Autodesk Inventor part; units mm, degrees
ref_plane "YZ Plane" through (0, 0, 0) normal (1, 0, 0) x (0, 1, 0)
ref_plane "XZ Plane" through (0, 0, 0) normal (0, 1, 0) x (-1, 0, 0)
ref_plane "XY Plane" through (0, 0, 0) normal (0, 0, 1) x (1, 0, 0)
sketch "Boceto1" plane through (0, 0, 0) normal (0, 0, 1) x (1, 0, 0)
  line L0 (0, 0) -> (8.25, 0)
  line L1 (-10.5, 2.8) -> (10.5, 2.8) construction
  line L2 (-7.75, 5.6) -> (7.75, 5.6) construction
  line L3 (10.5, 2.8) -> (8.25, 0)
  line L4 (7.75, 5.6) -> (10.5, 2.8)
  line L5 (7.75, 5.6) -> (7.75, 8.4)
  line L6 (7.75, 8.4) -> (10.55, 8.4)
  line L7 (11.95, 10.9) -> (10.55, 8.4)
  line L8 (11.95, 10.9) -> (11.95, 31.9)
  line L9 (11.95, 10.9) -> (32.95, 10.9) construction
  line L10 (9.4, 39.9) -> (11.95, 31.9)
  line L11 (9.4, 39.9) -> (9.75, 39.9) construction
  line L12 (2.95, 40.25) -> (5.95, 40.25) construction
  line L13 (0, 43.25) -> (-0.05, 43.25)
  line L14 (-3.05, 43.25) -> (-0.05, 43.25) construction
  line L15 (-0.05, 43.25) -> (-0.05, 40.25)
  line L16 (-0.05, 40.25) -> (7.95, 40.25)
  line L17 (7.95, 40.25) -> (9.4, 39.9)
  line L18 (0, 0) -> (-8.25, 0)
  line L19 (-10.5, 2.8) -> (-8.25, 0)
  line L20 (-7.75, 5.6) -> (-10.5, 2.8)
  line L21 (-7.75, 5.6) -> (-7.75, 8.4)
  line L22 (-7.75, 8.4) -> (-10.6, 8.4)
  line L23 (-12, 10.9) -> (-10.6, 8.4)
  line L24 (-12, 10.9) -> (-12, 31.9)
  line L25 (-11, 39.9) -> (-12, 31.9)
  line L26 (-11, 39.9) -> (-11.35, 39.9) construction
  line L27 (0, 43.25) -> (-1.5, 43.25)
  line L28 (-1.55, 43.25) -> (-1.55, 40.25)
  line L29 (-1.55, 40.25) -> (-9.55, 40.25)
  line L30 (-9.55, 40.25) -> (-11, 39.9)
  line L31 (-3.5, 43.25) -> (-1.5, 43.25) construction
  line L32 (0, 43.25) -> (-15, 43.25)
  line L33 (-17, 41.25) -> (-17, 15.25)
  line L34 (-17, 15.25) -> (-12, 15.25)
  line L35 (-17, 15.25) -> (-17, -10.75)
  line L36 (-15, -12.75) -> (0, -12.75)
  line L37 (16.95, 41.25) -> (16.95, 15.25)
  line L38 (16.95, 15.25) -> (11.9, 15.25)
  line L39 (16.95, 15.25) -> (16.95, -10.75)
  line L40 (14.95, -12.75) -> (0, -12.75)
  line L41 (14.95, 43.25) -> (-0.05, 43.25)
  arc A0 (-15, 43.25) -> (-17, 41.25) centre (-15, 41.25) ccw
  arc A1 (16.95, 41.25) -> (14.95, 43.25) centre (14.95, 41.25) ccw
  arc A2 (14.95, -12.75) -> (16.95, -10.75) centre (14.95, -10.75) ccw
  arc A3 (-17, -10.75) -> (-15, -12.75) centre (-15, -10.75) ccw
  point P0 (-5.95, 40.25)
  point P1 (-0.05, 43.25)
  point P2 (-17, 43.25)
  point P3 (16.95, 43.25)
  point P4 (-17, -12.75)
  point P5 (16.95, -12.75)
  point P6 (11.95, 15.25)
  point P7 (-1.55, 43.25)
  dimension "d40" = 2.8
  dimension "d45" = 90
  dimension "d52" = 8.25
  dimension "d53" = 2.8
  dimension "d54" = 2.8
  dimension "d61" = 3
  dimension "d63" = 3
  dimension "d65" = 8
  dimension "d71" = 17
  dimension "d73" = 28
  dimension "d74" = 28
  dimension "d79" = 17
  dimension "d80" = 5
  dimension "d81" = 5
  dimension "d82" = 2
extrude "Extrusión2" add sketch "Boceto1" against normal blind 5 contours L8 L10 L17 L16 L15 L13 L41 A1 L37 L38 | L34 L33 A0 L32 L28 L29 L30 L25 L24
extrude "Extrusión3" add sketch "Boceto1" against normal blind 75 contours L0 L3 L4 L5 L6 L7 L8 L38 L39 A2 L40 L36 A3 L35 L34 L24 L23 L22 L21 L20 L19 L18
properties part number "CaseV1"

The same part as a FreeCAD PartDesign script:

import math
import FreeCAD as App
import Part
import Sketcher
from FreeCAD import Vector
Q = App.Units.Quantity

doc = App.newDocument("Part")
body = doc.addObject("PartDesign::Body", "Body")
body.AllowCompound = True

sketch1 = doc.addObject("Sketcher::SketchObject", "Sketch")
body.addObject(sketch1)
sketch1.AttachmentSupport = (doc.XY_Plane, [""])
sketch1.MapMode = "FlatFace"
sketch1.addGeometry([
    Part.LineSegment(Vector(11.95, 31.9, 0), Vector(11.95, 15.25, 0)),
    Part.LineSegment(Vector(11.95, 15.25, 0), Vector(16.95, 15.25, 0)),
    Part.LineSegment(Vector(16.95, 15.25, 0), Vector(16.95, 41.25, 0)),
    Part.ArcOfCircle(Part.Circle(Vector(14.95, 41.25, 0), Vector(0, 0, 1), 2), math.radians(0), math.radians(90)),
    Part.LineSegment(Vector(14.95, 43.25, 0), Vector(-0.05, 43.25, 0)),
    Part.LineSegment(Vector(-0.05, 43.25, 0), Vector(-0.05, 40.25, 0)),
    Part.LineSegment(Vector(-0.05, 40.25, 0), Vector(7.95, 40.25, 0)),
    Part.LineSegment(Vector(7.95, 40.25, 0), Vector(9.4, 39.9, 0)),
    Part.LineSegment(Vector(9.4, 39.9, 0), Vector(11.95, 31.9, 0)),
    Part.LineSegment(Vector(-17, 15.25, 0), Vector(-12, 15.25, 0)),
    Part.LineSegment(Vector(-12, 15.25, 0), Vector(-12, 31.9, 0)),
    Part.LineSegment(Vector(-12, 31.9, 0), Vector(-11, 39.9, 0)),
    Part.LineSegment(Vector(-11, 39.9, 0), Vector(-9.55, 40.25, 0)),
    Part.LineSegment(Vector(-9.55, 40.25, 0), Vector(-1.55, 40.25, 0)),
    Part.LineSegment(Vector(-1.55, 40.25, 0), Vector(-1.55, 43.25, 0)),
    Part.LineSegment(Vector(-1.55, 43.25, 0), Vector(-15, 43.25, 0)),
    Part.ArcOfCircle(Part.Circle(Vector(-15, 41.25, 0), Vector(0, 0, 1), 2), math.radians(90), math.radians(180)),
    Part.LineSegment(Vector(-17, 41.25, 0), Vector(-17, 15.25, 0)),
], False)
sketch1.addConstraint([
    Sketcher.Constraint("Coincident", 0, 2, 1, 1),
    Sketcher.Constraint("Coincident", 1, 2, 2, 1),
    Sketcher.Constraint("Tangent", 2, 2, 3, 1),
    Sketcher.Constraint("Tangent", 3, 2, 4, 1),
    Sketcher.Constraint("Coincident", 4, 2, 5, 1),
    Sketcher.Constraint("Coincident", 5, 2, 6, 1),
    Sketcher.Constraint("Coincident", 6, 2, 7, 1),
    Sketcher.Constraint("Coincident", 7, 2, 8, 1),
    Sketcher.Constraint("Coincident", 8, 2, 0, 1),
    Sketcher.Constraint("Coincident", 9, 2, 10, 1),
    Sketcher.Constraint("Coincident", 10, 2, 11, 1),
    Sketcher.Constraint("Coincident", 11, 2, 12, 1),
    Sketcher.Constraint("Coincident", 12, 2, 13, 1),
    Sketcher.Constraint("Coincident", 13, 2, 14, 1),
    Sketcher.Constraint("Coincident", 14, 2, 15, 1),
    Sketcher.Constraint("Tangent", 15, 2, 16, 1),
    Sketcher.Constraint("Tangent", 16, 2, 17, 1),
    Sketcher.Constraint("Coincident", 17, 2, 9, 1),
    Sketcher.Constraint("Vertical", 0),
    Sketcher.Constraint("Horizontal", 1),
    Sketcher.Constraint("Vertical", 2),
    Sketcher.Constraint("Horizontal", 4),
    Sketcher.Constraint("Vertical", 5),
    Sketcher.Constraint("Horizontal", 6),
    Sketcher.Constraint("Horizontal", 9),
    Sketcher.Constraint("Vertical", 10),
    Sketcher.Constraint("Horizontal", 13),
    Sketcher.Constraint("Vertical", 14),
    Sketcher.Constraint("Horizontal", 15),
    Sketcher.Constraint("Vertical", 17),
    Sketcher.Constraint("Equal", 3, 16),
    Sketcher.Constraint("Horizontal", 3, 3, 16, 3),
    Sketcher.Constraint("Horizontal", 1, 2, 9, 2),
    Sketcher.Constraint("Horizontal", 8, 2, 10, 2),
    Sketcher.Constraint("Horizontal", 7, 2, 11, 2),
    Sketcher.Constraint("Horizontal", 6, 2, 12, 2),
    Sketcher.Constraint("Equal", 1, 9),
    Sketcher.Constraint("Equal", 6, 13),
    Sketcher.Constraint("Equal", 7, 12),
    Sketcher.Constraint("Radius", 3, Q("2 mm")),
    Sketcher.Constraint("DistanceX", 1, 1, 1, 2, Q("5 mm")),
    Sketcher.Constraint("DistanceX", 6, 1, 6, 2, Q("8 mm")),
    Sketcher.Constraint("DistanceY", 5, 2, 5, 1, Q("3 mm")),
    Sketcher.Constraint("DistanceX", 16, 2, -1, 1, Q("17 mm")),
    Sketcher.Constraint("DistanceY", 1, 2, 3, 2, Q("28 mm")),
    Sketcher.Constraint("DistanceX", 4, 2, 2, 2, Q("17 mm")),
    Sketcher.Constraint("DistanceY", 8, 2, 7, 2, Q("8 mm")),
    Sketcher.Constraint("DistanceX", 11, 2, -1, 1, Q("11 mm")),
    Sketcher.Constraint("DistanceX", 15, 2, 15, 1, Q("13.45 mm")),
    Sketcher.Constraint("DistanceY", 0, 2, 0, 1, Q("16.65 mm")),
    Sketcher.Constraint("DistanceX", -1, 1, 7, 2, Q("9.4 mm")),
    Sketcher.Constraint("DistanceY", -1, 1, 7, 2, Q("39.9 mm")),
])
pad1 = doc.addObject("PartDesign::Pad", "Pad")
body.addObject(pad1)
pad1.Profile = sketch1
pad1.Length = 5
pad1.Reversed = True

sketch2 = doc.addObject("Sketcher::SketchObject", "Sketch001")
body.addObject(sketch2)
sketch2.AttachmentSupport = (doc.XY_Plane, [""])
sketch2.MapMode = "FlatFace"
sketch2.addGeometry([
    Part.LineSegment(Vector(8.25, 0, 0), Vector(-8.25, 0, 0)),
    Part.LineSegment(Vector(-8.25, 0, 0), Vector(-10.5, 2.8, 0)),
    Part.LineSegment(Vector(-10.5, 2.8, 0), Vector(-7.75, 5.6, 0)),
    Part.LineSegment(Vector(-7.75, 5.6, 0), Vector(-7.75, 8.4, 0)),
    Part.LineSegment(Vector(-7.75, 8.4, 0), Vector(-10.6, 8.4, 0)),
    Part.LineSegment(Vector(-10.6, 8.4, 0), Vector(-12, 10.9, 0)),
    Part.LineSegment(Vector(-12, 10.9, 0), Vector(-12, 15.25, 0)),
    Part.LineSegment(Vector(-12, 15.25, 0), Vector(-17, 15.25, 0)),
    Part.LineSegment(Vector(-17, 15.25, 0), Vector(-17, -10.75, 0)),
    Part.ArcOfCircle(Part.Circle(Vector(-15, -10.75, 0), Vector(0, 0, 1), 2), math.radians(180), math.radians(270)),
    Part.LineSegment(Vector(-15, -12.75, 0), Vector(14.95, -12.75, 0)),
    Part.ArcOfCircle(Part.Circle(Vector(14.95, -10.75, 0), Vector(0, 0, 1), 2), math.radians(-90), math.radians(0)),
    Part.LineSegment(Vector(16.95, -10.75, 0), Vector(16.95, 15.25, 0)),
    Part.LineSegment(Vector(16.95, 15.25, 0), Vector(11.95, 15.25, 0)),
    Part.LineSegment(Vector(11.95, 15.25, 0), Vector(11.95, 10.9, 0)),
    Part.LineSegment(Vector(11.95, 10.9, 0), Vector(10.55, 8.4, 0)),
    Part.LineSegment(Vector(10.55, 8.4, 0), Vector(7.75, 8.4, 0)),
    Part.LineSegment(Vector(7.75, 8.4, 0), Vector(7.75, 5.6, 0)),
    Part.LineSegment(Vector(7.75, 5.6, 0), Vector(10.5, 2.8, 0)),
    Part.LineSegment(Vector(10.5, 2.8, 0), Vector(8.25, 0, 0)),
], False)
sketch2.addConstraint([
    Sketcher.Constraint("Coincident", 0, 2, 1, 1),
    Sketcher.Constraint("Coincident", 1, 2, 2, 1),
    Sketcher.Constraint("Coincident", 2, 2, 3, 1),
    Sketcher.Constraint("Coincident", 3, 2, 4, 1),
    Sketcher.Constraint("Coincident", 4, 2, 5, 1),
    Sketcher.Constraint("Coincident", 5, 2, 6, 1),
    Sketcher.Constraint("Coincident", 6, 2, 7, 1),
    Sketcher.Constraint("Coincident", 7, 2, 8, 1),
    Sketcher.Constraint("Tangent", 8, 2, 9, 1),
    Sketcher.Constraint("Tangent", 9, 2, 10, 1),
    Sketcher.Constraint("Tangent", 10, 2, 11, 1),
    Sketcher.Constraint("Tangent", 11, 2, 12, 1),
    Sketcher.Constraint("Coincident", 12, 2, 13, 1),
    Sketcher.Constraint("Coincident", 13, 2, 14, 1),
    Sketcher.Constraint("Coincident", 14, 2, 15, 1),
    Sketcher.Constraint("Coincident", 15, 2, 16, 1),
    Sketcher.Constraint("Coincident", 16, 2, 17, 1),
    Sketcher.Constraint("Coincident", 17, 2, 18, 1),
    Sketcher.Constraint("Coincident", 18, 2, 19, 1),
    Sketcher.Constraint("Coincident", 19, 2, 0, 1),
    Sketcher.Constraint("Horizontal", 0),
    Sketcher.Constraint("Vertical", 3),
    Sketcher.Constraint("Horizontal", 4),
    Sketcher.Constraint("Vertical", 6),
    Sketcher.Constraint("Horizontal", 7),
    Sketcher.Constraint("Vertical", 8),
    Sketcher.Constraint("Horizontal", 10),
    Sketcher.Constraint("Vertical", 12),
    Sketcher.Constraint("Horizontal", 13),
    Sketcher.Constraint("Vertical", 14),
    Sketcher.Constraint("Horizontal", 16),
    Sketcher.Constraint("Vertical", 17),
    Sketcher.Constraint("Equal", 9, 11),
    Sketcher.Constraint("Symmetric", 0, 2, 19, 2, -1, 1),
    Sketcher.Constraint("Symmetric", 3, 2, 16, 2, -2),
    Sketcher.Constraint("Symmetric", 1, 2, 18, 2, -2),
    Sketcher.Constraint("Horizontal", 7, 2, 12, 2),
    Sketcher.Constraint("Horizontal", 5, 2, 14, 2),
    Sketcher.Constraint("Horizontal", 2, 2, 17, 2),
    Sketcher.Constraint("Equal", 7, 13),
    Sketcher.Constraint("Equal", 16, 3),
    Sketcher.Constraint("Equal", 5, 15),
    Sketcher.Constraint("Radius", 9, Q("2 mm")),
    Sketcher.Constraint("DistanceX", 7, 2, 7, 1, Q("5 mm")),
    Sketcher.Constraint("DistanceX", 16, 2, 16, 1, Q("2.8 mm")),
    Sketcher.Constraint("DistanceX", 7, 2, -1, 1, Q("17 mm")),
    Sketcher.Constraint("DistanceY", 10, 2, 12, 2, Q("28 mm")),
    Sketcher.Constraint("DistanceY", -1, 1, 1, 2, Q("2.8 mm")),
    Sketcher.Constraint("DistanceY", 1, 2, 2, 2, Q("2.8 mm")),
    Sketcher.Constraint("DistanceX", 0, 2, -1, 1, Q("8.25 mm")),
    Sketcher.Constraint("DistanceX", 4, 2, 4, 1, Q("2.85 mm")),
    Sketcher.Constraint("DistanceY", 6, 1, 6, 2, Q("4.35 mm")),
    Sketcher.Constraint("DistanceX", 1, 2, -1, 1, Q("10.5 mm")),
    Sketcher.Constraint("DistanceX", 4, 2, -1, 1, Q("10.6 mm")),
    Sketcher.Constraint("DistanceY", -1, 1, 5, 2, Q("10.9 mm")),
])
pad2 = doc.addObject("PartDesign::Pad", "Pad001")
body.addObject(pad2)
pad2.Profile = sketch2
pad2.Length = 75
pad2.Reversed = True

doc.recompute()
